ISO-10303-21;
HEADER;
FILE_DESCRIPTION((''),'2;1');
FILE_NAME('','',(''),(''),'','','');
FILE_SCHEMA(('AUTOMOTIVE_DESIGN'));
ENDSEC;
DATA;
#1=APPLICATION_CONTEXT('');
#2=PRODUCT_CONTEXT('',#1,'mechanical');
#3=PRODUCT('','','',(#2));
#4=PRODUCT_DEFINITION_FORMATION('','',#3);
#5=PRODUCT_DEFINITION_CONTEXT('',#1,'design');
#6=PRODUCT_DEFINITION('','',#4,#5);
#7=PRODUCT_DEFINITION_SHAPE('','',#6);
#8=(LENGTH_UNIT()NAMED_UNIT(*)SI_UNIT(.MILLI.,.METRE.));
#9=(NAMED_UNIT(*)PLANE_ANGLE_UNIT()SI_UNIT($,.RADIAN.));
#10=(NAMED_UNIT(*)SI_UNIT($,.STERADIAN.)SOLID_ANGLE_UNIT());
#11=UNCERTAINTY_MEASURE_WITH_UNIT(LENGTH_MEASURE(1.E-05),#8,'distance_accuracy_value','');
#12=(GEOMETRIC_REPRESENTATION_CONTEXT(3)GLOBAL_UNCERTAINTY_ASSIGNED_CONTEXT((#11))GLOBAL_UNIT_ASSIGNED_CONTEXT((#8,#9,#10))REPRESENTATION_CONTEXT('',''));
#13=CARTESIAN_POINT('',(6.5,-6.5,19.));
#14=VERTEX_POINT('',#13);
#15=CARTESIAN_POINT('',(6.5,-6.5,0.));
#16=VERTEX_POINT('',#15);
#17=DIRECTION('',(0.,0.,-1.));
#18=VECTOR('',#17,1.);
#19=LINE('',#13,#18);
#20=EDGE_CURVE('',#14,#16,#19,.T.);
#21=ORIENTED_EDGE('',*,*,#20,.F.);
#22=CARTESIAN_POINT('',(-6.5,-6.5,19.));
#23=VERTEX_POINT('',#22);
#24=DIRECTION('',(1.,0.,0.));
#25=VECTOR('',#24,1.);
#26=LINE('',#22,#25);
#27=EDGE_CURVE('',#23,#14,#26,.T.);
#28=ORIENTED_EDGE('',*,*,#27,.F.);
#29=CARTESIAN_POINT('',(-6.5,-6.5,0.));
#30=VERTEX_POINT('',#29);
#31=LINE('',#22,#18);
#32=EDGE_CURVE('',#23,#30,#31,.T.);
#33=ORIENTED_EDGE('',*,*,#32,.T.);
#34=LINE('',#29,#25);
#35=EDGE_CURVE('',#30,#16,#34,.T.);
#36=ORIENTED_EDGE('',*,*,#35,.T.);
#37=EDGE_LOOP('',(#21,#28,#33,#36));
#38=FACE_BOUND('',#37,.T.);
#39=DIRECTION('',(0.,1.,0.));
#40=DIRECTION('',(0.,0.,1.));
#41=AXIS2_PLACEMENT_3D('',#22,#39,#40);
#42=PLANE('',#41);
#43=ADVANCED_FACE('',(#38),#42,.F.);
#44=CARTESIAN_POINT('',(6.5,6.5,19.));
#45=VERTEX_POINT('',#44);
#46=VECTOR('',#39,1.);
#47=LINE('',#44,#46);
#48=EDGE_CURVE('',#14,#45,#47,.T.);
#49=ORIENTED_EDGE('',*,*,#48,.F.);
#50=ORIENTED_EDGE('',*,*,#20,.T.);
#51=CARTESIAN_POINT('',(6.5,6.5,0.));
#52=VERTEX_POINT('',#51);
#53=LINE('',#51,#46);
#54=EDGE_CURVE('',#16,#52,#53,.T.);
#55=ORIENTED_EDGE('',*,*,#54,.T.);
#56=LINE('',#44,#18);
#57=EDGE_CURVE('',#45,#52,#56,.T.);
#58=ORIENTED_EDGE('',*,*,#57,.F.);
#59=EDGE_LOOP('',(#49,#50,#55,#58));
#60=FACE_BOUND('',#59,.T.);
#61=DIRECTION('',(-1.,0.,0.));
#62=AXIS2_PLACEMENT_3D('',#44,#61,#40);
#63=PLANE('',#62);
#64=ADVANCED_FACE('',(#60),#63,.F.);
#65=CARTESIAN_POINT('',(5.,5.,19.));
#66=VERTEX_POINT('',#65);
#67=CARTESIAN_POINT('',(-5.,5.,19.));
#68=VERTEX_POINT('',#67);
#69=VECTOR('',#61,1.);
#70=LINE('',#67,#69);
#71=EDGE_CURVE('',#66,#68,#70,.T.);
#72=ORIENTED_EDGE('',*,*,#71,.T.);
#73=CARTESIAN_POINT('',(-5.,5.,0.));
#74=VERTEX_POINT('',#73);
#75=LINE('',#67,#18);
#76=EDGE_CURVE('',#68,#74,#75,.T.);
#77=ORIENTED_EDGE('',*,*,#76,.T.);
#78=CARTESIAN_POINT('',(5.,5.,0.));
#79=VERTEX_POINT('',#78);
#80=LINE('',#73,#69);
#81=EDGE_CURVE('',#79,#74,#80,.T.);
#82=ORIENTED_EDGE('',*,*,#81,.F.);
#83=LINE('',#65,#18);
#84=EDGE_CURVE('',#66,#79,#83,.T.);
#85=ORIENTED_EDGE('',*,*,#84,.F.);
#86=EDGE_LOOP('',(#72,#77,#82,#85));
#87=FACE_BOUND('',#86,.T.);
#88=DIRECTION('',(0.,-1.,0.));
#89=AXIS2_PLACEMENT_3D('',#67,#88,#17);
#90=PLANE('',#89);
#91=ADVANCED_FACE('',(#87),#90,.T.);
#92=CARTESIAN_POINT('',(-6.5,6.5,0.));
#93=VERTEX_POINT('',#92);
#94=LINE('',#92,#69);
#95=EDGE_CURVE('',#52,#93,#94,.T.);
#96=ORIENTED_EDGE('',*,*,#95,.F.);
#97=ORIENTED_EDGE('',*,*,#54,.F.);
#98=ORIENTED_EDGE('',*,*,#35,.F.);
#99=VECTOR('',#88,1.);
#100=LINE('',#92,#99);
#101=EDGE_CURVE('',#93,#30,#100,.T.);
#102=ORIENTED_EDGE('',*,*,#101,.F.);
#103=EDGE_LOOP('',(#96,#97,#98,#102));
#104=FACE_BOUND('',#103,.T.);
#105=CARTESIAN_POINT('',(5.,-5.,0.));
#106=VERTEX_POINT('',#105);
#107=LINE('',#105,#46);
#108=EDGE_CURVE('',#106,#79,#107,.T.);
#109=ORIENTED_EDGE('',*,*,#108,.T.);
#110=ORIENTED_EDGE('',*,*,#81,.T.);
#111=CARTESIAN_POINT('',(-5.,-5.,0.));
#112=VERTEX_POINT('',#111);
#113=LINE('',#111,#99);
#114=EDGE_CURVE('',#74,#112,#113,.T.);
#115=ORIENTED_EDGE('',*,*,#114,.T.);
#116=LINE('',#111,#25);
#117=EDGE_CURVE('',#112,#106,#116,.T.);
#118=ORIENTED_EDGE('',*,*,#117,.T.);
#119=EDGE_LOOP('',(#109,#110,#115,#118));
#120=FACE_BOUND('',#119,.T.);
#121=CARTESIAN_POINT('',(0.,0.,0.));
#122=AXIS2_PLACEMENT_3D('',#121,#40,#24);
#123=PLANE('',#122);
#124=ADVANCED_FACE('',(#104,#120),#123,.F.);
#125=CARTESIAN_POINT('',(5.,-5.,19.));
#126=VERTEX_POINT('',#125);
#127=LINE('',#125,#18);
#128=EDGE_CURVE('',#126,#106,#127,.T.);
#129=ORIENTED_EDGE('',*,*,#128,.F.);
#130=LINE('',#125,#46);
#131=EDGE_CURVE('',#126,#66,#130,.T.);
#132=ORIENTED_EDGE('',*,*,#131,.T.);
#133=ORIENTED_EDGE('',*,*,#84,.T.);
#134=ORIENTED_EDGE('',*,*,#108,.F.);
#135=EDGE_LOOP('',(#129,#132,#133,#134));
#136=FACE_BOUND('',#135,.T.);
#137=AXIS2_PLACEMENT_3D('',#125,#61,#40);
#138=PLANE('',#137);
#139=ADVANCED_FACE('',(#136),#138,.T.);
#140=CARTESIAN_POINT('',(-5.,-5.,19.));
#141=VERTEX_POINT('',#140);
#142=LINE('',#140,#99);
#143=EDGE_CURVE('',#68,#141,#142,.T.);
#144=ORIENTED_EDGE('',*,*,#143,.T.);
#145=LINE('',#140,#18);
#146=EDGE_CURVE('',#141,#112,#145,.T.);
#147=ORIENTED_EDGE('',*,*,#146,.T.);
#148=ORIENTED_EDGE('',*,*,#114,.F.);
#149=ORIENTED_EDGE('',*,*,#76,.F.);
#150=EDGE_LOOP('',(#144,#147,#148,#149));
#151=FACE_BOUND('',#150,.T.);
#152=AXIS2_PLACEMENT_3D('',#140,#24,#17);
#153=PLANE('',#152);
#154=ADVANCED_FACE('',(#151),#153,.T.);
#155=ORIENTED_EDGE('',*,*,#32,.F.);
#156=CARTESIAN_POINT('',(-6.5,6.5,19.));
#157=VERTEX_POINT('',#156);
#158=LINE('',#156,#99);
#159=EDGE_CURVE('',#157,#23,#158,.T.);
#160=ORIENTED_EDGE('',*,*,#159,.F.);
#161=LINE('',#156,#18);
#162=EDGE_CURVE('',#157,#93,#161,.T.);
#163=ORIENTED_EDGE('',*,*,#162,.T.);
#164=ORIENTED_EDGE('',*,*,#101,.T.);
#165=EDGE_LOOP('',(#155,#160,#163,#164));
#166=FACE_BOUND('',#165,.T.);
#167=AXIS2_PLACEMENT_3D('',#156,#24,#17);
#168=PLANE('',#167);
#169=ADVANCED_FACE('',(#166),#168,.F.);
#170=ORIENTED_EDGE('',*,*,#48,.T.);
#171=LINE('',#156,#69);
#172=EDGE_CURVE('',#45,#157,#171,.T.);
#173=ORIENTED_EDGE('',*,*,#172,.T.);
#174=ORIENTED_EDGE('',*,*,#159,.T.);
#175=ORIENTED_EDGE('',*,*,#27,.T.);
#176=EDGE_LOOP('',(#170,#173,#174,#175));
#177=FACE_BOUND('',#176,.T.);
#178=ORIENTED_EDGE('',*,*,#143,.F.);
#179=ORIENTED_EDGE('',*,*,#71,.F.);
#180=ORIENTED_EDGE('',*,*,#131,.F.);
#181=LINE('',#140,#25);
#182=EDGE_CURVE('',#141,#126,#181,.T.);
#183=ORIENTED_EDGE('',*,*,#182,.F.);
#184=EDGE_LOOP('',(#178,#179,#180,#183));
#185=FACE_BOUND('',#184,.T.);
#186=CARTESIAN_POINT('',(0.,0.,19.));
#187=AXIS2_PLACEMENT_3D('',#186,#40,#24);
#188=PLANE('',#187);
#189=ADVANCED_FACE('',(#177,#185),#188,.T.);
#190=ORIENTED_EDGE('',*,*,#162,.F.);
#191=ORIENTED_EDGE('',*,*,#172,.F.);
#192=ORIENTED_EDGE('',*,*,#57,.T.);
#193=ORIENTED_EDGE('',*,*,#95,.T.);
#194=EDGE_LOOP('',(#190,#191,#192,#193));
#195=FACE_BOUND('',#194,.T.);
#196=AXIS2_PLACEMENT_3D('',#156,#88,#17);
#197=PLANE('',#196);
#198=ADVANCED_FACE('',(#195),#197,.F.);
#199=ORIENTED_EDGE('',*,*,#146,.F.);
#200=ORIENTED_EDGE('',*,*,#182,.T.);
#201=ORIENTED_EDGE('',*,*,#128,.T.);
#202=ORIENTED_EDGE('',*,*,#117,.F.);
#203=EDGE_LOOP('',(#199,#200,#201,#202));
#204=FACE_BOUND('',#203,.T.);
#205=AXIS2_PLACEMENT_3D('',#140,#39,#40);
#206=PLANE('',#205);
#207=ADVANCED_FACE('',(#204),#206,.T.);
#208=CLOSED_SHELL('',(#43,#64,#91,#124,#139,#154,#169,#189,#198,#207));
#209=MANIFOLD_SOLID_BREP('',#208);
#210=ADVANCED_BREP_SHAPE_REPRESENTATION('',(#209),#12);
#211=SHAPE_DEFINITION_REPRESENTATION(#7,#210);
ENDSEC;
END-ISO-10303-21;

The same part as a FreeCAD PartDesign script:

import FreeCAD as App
import Part
import Sketcher
from FreeCAD import Vector

doc = App.newDocument("Part")
body = doc.addObject("PartDesign::Body", "Body")

sketch1 = body.newObject("Sketcher::SketchObject", "Sketch")
sketch1.AttachmentSupport = (doc.getObject("XY_Plane"), [""])
sketch1.MapMode = "FlatFace"
sketch1.addGeometry([
    Part.LineSegment(Vector(-6.5, 6.5, 0), Vector(-6.5, -6.5, 0)),
    Part.LineSegment(Vector(-6.5, -6.5, 0), Vector(6.5, -6.5, 0)),
    Part.LineSegment(Vector(6.5, -6.5, 0), Vector(6.5, 6.5, 0)),
    Part.LineSegment(Vector(6.5, 6.5, 0), Vector(-6.5, 6.5, 0)),
    Part.LineSegment(Vector(5, -5, 0), Vector(-5, -5, 0)),
    Part.LineSegment(Vector(-5, -5, 0), Vector(-5, 5, 0)),
    Part.LineSegment(Vector(-5, 5, 0), Vector(5, 5, 0)),
    Part.LineSegment(Vector(5, 5, 0), Vector(5, -5, 0)),
], False)
sketch1.addConstraint([
    Sketcher.Constraint("Coincident", 0, 2, 1, 1),
    Sketcher.Constraint("Coincident", 1, 2, 2, 1),
    Sketcher.Constraint("Coincident", 2, 2, 3, 1),
    Sketcher.Constraint("Coincident", 3, 2, 0, 1),
    Sketcher.Constraint("Coincident", 4, 2, 5, 1),
    Sketcher.Constraint("Coincident", 5, 2, 6, 1),
    Sketcher.Constraint("Coincident", 6, 2, 7, 1),
    Sketcher.Constraint("Coincident", 7, 2, 4, 1),
    Sketcher.Constraint("Vertical", 0),
    Sketcher.Constraint("Horizontal", 1),
    Sketcher.Constraint("Vertical", 2),
    Sketcher.Constraint("Horizontal", 3),
    Sketcher.Constraint("Horizontal", 4),
    Sketcher.Constraint("Vertical", 5),
    Sketcher.Constraint("Horizontal", 6),
    Sketcher.Constraint("Vertical", 7),
    Sketcher.Constraint("Symmetric", 0, 2, 2, 2, -1, 1),
    Sketcher.Constraint("Symmetric", 4, 2, 6, 2, -1, 1),
    Sketcher.Constraint("Equal", 3, 0),
    Sketcher.Constraint("Equal", 6, 5),
    Sketcher.Constraint("DistanceX", 1, 1, 1, 2, 13.0),
    Sketcher.Constraint("DistanceX", 4, 2, 4, 1, 10.0),
])
pad1 = body.newObject("PartDesign::Pad", "Pad")
pad1.Profile = sketch1
pad1.Length = 19

doc.recompute()
